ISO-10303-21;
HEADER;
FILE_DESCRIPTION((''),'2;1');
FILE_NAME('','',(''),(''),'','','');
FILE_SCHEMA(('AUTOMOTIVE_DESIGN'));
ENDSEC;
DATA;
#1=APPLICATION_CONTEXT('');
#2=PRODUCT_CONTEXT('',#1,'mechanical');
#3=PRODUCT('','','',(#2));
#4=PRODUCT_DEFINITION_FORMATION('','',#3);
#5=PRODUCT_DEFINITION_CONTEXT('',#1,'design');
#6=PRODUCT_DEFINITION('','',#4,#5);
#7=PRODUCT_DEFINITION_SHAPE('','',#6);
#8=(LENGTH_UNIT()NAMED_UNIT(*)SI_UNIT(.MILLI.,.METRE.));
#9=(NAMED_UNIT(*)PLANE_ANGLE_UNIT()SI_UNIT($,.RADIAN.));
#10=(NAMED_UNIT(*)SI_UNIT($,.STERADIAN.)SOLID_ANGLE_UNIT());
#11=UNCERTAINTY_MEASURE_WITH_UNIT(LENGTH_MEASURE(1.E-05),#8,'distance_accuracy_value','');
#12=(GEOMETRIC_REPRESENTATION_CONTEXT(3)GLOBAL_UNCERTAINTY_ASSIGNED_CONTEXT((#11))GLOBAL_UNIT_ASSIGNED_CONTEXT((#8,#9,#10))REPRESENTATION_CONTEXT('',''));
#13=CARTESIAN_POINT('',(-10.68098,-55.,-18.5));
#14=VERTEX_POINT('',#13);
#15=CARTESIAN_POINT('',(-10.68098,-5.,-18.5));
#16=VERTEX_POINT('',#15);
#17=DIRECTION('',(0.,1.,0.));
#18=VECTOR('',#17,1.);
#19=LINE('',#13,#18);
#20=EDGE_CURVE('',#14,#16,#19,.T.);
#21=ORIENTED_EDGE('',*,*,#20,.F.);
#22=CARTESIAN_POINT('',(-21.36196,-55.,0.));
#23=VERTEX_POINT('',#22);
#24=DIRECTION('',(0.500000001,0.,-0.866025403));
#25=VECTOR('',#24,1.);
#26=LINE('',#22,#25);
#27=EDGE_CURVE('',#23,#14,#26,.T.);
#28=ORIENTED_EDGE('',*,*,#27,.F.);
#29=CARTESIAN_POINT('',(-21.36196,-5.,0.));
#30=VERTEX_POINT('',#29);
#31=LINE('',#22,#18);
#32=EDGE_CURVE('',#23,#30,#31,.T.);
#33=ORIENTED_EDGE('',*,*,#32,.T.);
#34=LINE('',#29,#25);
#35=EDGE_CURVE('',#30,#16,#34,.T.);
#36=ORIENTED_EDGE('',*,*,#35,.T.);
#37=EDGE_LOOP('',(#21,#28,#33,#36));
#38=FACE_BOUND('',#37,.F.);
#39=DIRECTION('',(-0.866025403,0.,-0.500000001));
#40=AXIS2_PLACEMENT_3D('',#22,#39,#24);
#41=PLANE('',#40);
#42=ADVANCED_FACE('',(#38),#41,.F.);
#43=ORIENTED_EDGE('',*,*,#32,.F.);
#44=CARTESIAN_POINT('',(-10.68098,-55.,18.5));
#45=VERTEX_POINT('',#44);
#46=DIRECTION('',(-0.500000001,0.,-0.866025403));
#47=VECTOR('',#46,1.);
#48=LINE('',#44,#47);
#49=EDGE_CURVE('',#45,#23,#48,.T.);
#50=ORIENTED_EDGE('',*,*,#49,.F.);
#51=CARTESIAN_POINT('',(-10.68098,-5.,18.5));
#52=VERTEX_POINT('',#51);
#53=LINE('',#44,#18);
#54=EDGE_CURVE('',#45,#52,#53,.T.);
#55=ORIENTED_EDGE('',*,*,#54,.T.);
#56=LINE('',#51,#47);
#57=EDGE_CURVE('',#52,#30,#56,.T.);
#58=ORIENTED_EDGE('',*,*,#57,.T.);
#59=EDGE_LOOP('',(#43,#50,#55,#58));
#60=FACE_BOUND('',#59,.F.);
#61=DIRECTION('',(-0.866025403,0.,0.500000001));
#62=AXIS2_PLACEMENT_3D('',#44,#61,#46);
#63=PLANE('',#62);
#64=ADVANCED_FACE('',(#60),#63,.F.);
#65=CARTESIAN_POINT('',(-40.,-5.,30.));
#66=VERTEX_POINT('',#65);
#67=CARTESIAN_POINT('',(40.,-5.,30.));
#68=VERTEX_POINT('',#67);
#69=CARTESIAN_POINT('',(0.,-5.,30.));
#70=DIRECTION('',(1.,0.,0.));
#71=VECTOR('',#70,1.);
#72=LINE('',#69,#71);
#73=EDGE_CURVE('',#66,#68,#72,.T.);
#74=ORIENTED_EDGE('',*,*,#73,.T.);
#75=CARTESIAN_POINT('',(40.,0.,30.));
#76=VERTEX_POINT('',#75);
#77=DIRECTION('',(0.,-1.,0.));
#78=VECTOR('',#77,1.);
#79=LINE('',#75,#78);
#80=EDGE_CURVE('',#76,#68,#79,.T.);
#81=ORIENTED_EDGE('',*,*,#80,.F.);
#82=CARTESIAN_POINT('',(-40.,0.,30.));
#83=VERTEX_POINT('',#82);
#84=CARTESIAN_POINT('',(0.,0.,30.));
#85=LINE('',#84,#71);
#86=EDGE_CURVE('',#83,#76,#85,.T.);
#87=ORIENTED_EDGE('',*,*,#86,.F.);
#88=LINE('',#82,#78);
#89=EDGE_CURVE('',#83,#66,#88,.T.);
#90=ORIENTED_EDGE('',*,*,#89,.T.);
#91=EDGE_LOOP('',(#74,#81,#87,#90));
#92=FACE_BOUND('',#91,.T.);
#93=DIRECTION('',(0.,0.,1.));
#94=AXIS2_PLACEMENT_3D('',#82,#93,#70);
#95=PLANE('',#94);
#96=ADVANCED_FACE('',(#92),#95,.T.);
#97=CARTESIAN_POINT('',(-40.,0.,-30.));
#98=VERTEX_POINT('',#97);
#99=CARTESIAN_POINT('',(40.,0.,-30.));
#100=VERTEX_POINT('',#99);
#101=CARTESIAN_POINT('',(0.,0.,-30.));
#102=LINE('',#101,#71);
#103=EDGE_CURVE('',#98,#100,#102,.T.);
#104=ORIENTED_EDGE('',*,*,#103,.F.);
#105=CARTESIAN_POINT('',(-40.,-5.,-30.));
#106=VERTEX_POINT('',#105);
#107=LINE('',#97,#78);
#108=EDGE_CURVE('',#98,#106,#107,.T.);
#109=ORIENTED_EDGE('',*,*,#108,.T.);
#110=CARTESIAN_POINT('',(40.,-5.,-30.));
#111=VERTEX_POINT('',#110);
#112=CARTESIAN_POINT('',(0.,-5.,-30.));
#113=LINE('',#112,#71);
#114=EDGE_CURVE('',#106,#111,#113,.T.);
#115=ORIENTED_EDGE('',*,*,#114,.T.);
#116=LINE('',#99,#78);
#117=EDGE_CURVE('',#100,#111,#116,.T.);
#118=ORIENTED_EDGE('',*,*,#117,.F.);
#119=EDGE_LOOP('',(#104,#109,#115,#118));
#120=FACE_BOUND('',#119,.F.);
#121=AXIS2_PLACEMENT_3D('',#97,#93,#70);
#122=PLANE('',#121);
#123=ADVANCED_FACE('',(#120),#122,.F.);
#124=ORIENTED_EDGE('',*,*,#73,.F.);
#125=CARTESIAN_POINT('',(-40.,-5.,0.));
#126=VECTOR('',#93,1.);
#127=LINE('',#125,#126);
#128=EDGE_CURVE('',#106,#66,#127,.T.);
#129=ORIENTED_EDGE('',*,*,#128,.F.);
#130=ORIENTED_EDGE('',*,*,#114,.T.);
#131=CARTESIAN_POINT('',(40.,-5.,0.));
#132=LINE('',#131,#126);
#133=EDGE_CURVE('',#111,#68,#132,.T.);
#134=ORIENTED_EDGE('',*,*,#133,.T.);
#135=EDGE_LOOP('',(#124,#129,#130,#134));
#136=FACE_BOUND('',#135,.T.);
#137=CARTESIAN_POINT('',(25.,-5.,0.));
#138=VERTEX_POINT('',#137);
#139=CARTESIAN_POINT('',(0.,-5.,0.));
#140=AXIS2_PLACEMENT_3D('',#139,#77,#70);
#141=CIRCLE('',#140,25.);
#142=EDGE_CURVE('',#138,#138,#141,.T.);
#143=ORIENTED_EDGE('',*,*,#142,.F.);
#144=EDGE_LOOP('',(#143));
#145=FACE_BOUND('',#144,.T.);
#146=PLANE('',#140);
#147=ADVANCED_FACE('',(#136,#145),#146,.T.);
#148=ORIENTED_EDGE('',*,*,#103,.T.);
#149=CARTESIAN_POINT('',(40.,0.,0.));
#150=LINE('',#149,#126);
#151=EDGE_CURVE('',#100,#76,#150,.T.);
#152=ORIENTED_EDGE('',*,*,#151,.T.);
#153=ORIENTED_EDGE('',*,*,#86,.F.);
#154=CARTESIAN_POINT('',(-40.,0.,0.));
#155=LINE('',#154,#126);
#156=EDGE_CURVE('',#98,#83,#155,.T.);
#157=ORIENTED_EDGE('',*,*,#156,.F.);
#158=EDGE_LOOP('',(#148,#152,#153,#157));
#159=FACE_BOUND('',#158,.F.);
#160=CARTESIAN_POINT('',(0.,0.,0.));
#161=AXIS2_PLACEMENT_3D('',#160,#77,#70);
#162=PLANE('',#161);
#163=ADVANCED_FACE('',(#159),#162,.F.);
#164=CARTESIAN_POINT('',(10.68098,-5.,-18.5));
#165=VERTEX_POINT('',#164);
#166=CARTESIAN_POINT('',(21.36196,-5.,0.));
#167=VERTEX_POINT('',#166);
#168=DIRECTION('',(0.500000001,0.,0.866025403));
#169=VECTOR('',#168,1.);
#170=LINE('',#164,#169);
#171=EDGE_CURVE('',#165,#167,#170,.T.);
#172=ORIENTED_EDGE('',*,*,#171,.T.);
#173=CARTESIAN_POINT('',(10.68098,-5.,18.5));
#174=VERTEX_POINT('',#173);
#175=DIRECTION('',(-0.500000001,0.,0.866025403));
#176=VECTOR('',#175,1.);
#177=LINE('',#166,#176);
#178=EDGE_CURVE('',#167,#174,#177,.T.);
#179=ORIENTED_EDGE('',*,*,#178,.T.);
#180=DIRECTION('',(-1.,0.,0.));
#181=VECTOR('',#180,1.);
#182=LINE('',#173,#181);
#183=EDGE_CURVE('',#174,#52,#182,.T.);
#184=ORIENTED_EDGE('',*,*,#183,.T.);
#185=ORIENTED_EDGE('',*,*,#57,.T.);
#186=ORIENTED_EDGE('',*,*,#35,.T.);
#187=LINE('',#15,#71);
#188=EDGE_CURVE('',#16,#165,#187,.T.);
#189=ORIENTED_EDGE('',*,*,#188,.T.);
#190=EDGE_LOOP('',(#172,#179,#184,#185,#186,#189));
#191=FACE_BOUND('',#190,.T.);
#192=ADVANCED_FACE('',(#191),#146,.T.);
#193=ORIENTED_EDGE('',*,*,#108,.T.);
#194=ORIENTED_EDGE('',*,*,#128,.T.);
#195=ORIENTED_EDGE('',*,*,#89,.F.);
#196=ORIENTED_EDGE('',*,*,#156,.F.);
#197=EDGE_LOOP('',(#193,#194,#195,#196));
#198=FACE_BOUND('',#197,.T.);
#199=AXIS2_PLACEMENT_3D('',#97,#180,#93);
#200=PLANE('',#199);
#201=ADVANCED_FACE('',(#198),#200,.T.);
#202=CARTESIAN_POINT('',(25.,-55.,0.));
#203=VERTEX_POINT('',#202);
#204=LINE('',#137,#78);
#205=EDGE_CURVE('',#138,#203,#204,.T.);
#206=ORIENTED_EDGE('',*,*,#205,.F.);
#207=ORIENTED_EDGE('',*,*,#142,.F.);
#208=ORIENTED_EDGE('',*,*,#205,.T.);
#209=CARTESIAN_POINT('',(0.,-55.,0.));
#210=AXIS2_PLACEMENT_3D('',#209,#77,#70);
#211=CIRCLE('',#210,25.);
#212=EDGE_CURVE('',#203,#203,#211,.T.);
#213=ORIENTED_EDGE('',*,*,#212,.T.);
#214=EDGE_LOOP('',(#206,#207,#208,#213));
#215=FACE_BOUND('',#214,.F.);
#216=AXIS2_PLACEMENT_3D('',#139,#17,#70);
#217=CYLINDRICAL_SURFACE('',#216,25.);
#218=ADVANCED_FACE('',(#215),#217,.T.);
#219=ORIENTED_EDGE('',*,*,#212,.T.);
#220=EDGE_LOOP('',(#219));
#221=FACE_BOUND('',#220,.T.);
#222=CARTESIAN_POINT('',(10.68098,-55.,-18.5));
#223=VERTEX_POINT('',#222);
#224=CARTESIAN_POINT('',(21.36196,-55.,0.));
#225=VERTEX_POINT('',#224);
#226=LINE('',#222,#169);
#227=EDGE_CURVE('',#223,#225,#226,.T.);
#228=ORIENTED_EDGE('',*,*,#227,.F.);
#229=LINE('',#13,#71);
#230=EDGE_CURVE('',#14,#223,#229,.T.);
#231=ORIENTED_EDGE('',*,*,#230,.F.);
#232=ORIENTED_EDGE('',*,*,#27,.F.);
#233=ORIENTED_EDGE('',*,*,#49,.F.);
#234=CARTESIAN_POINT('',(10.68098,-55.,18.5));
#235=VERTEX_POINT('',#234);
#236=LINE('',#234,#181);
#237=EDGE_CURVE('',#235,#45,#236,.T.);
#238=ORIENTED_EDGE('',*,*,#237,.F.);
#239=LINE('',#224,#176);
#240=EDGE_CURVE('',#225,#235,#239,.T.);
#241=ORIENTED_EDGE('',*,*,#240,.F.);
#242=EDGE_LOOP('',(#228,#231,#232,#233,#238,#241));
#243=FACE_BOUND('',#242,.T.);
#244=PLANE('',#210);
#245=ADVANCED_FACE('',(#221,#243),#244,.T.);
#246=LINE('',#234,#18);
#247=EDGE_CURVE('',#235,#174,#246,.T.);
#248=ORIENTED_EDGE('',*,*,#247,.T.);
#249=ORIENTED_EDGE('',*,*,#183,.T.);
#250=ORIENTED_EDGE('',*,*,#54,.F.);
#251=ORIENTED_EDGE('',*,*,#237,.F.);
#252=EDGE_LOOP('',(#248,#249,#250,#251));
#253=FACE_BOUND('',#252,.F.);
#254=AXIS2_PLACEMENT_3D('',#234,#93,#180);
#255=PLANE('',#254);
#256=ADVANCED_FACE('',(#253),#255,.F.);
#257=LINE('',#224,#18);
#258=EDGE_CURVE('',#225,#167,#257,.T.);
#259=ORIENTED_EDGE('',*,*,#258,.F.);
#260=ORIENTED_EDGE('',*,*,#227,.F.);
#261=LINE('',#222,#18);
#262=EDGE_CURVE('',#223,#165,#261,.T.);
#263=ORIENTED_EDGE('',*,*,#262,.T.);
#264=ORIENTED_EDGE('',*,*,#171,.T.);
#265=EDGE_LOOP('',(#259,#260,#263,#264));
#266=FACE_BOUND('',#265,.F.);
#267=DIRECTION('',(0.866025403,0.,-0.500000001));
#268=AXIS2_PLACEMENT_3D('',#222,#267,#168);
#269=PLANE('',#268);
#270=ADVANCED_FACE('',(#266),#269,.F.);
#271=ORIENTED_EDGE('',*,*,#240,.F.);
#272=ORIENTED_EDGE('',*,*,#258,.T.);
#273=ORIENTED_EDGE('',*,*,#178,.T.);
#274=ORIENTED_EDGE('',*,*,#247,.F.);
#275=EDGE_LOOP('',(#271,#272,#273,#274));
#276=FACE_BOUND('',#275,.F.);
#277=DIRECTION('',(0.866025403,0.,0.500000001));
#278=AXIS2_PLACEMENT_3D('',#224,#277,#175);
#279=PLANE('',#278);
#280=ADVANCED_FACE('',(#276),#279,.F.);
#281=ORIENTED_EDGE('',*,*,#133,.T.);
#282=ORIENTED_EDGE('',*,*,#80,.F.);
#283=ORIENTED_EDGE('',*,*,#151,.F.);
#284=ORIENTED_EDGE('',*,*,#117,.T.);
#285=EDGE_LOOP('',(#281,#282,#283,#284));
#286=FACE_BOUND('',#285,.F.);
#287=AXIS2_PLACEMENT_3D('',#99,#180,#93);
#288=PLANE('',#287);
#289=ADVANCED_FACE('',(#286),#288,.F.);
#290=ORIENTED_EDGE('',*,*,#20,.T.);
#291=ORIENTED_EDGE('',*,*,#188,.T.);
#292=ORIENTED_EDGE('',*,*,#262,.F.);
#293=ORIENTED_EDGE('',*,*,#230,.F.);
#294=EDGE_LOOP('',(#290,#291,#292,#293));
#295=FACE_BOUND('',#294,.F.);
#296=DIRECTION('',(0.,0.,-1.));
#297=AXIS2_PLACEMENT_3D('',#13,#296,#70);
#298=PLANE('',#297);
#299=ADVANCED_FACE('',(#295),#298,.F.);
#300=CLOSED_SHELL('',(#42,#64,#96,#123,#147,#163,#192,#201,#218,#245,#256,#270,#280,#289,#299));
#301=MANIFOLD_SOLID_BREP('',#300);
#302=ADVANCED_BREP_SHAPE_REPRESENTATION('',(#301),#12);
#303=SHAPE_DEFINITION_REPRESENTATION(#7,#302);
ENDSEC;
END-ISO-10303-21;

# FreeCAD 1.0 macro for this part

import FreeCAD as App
import Part
import Sketcher

V = App.Vector
Q = App.Units.Quantity


def add_polygon(sketch, points):
    """Adds a closed chain of lines whose ends are joined by coincident constraints."""
    first, n = sketch.GeometryCount, len(points)
    for a, b in zip(points, points[1:] + points[:1]):
        sketch.addGeometry(Part.LineSegment(App.Vector(*a, 0), App.Vector(*b, 0)), False)
    for i in range(n):
        sketch.addConstraint(Sketcher.Constraint("Coincident", first + i, 2, first + (i + 1) % n, 1))

doc = App.newDocument("Part")
params = doc.addObject("Spreadsheet::Sheet", "Params")
for row, (alias, value) in enumerate([
    ("sketch1_width", "80 mm"),
    ("sketch1_height", "60 mm"),
    ("pad1_length", "5 mm"),
    ("sketch2_diameter", "50 mm"),
    ("pad2_length", "50 mm"),
    ("pocket1_length", "50 mm"),
], start=1):
    params.set(f"A{row}", alias)
    params.set(f"B{row}", "=" + value)
    params.setAlias(f"B{row}", alias)

body = doc.addObject("PartDesign::Body", "Body")

sketch1 = body.newObject("Sketcher::SketchObject", "Sketch")
sketch1.AttachmentSupport = (doc.getObject("XZ_Plane"), [""])
sketch1.MapMode = "FlatFace"
add_polygon(sketch1, [(-40, 30), (-40, -30), (40, -30), (40, 30)])
sketch1.addConstraint([
    Sketcher.Constraint("Vertical", 0),
    Sketcher.Constraint("Horizontal", 1),
    Sketcher.Constraint("Vertical", 2),
    Sketcher.Constraint("Horizontal", 3),
    Sketcher.Constraint("Symmetric", 0, 2, 2, 2, -1, 1),
    Sketcher.Constraint("DistanceX", 1, 1, 1, 2, 80.0),
    Sketcher.Constraint("DistanceY", 0, 2, 0, 1, 60.0),
])
sketch1.setExpression("Constraints[9]", "Params.sketch1_width")
sketch1.setExpression("Constraints[10]", "Params.sketch1_height")
pad1 = body.newObject("PartDesign::Pad", "Pad")
pad1.Profile = sketch1
pad1.setExpression("Length", "Params.pad1_length")

sketch2 = body.newObject("Sketcher::SketchObject", "Sketch001")
sketch2.AttachmentSupport = (doc.getObject("XZ_Plane"), [""])
sketch2.MapMode = "FlatFace"
sketch2.AttachmentOffset = App.Placement(V(0, 0, 5), App.Rotation())
sketch2.addGeometry(Part.Circle(V(0, 0, 0), V(0, 0, 1), 25), False)
sketch2.addConstraint([
    Sketcher.Constraint("Coincident", 0, 3, -1, 1),
    Sketcher.Constraint("Diameter", 0, 50.0),
])
sketch2.setExpression("Constraints[1]", "Params.sketch2_diameter")
pad2 = body.newObject("PartDesign::Pad", "Pad001")
pad2.Profile = sketch2
pad2.setExpression("Length", "Params.pad2_length")

sketch3 = body.newObject("Sketcher::SketchObject", "Sketch002")
sketch3.AttachmentSupport = (doc.getObject("XZ_Plane"), [""])
sketch3.MapMode = "FlatFace"
sketch3.AttachmentOffset = App.Placement(V(0, 0, 55), App.Rotation())
add_polygon(sketch3, [(11, -18), (21, 0), (11, 18), (-11, 18), (-21, 0), (-11, -18)])
sketch3.addConstraint([
    Sketcher.Constraint("Horizontal", 2),
    Sketcher.Constraint("Horizontal", 5),
    Sketcher.Constraint("Symmetric", 0, 2, 3, 2, -1, 1),
    Sketcher.Constraint("Symmetric", 1, 2, 4, 2, -1, 1),
    Sketcher.Constraint("PointOnObject", 0, 2, -1),
    Sketcher.Constraint("Parallel", 0, 3),
    Sketcher.Constraint("Vertical", 2, 2, 4, 2),
    Sketcher.Constraint("Angle", 0, Q("60 deg")),
    Sketcher.Constraint("DistanceY", 4, 2, 2, 2, 37.0),
    Sketcher.Constraint("DistanceX", 2, 2, 2, 1, 21.36196),
])
pocket1 = body.newObject("PartDesign::Pocket", "Pocket")
pocket1.Profile = sketch3
pocket1.setExpression("Length", "Params.pocket1_length")

doc.recompute()
